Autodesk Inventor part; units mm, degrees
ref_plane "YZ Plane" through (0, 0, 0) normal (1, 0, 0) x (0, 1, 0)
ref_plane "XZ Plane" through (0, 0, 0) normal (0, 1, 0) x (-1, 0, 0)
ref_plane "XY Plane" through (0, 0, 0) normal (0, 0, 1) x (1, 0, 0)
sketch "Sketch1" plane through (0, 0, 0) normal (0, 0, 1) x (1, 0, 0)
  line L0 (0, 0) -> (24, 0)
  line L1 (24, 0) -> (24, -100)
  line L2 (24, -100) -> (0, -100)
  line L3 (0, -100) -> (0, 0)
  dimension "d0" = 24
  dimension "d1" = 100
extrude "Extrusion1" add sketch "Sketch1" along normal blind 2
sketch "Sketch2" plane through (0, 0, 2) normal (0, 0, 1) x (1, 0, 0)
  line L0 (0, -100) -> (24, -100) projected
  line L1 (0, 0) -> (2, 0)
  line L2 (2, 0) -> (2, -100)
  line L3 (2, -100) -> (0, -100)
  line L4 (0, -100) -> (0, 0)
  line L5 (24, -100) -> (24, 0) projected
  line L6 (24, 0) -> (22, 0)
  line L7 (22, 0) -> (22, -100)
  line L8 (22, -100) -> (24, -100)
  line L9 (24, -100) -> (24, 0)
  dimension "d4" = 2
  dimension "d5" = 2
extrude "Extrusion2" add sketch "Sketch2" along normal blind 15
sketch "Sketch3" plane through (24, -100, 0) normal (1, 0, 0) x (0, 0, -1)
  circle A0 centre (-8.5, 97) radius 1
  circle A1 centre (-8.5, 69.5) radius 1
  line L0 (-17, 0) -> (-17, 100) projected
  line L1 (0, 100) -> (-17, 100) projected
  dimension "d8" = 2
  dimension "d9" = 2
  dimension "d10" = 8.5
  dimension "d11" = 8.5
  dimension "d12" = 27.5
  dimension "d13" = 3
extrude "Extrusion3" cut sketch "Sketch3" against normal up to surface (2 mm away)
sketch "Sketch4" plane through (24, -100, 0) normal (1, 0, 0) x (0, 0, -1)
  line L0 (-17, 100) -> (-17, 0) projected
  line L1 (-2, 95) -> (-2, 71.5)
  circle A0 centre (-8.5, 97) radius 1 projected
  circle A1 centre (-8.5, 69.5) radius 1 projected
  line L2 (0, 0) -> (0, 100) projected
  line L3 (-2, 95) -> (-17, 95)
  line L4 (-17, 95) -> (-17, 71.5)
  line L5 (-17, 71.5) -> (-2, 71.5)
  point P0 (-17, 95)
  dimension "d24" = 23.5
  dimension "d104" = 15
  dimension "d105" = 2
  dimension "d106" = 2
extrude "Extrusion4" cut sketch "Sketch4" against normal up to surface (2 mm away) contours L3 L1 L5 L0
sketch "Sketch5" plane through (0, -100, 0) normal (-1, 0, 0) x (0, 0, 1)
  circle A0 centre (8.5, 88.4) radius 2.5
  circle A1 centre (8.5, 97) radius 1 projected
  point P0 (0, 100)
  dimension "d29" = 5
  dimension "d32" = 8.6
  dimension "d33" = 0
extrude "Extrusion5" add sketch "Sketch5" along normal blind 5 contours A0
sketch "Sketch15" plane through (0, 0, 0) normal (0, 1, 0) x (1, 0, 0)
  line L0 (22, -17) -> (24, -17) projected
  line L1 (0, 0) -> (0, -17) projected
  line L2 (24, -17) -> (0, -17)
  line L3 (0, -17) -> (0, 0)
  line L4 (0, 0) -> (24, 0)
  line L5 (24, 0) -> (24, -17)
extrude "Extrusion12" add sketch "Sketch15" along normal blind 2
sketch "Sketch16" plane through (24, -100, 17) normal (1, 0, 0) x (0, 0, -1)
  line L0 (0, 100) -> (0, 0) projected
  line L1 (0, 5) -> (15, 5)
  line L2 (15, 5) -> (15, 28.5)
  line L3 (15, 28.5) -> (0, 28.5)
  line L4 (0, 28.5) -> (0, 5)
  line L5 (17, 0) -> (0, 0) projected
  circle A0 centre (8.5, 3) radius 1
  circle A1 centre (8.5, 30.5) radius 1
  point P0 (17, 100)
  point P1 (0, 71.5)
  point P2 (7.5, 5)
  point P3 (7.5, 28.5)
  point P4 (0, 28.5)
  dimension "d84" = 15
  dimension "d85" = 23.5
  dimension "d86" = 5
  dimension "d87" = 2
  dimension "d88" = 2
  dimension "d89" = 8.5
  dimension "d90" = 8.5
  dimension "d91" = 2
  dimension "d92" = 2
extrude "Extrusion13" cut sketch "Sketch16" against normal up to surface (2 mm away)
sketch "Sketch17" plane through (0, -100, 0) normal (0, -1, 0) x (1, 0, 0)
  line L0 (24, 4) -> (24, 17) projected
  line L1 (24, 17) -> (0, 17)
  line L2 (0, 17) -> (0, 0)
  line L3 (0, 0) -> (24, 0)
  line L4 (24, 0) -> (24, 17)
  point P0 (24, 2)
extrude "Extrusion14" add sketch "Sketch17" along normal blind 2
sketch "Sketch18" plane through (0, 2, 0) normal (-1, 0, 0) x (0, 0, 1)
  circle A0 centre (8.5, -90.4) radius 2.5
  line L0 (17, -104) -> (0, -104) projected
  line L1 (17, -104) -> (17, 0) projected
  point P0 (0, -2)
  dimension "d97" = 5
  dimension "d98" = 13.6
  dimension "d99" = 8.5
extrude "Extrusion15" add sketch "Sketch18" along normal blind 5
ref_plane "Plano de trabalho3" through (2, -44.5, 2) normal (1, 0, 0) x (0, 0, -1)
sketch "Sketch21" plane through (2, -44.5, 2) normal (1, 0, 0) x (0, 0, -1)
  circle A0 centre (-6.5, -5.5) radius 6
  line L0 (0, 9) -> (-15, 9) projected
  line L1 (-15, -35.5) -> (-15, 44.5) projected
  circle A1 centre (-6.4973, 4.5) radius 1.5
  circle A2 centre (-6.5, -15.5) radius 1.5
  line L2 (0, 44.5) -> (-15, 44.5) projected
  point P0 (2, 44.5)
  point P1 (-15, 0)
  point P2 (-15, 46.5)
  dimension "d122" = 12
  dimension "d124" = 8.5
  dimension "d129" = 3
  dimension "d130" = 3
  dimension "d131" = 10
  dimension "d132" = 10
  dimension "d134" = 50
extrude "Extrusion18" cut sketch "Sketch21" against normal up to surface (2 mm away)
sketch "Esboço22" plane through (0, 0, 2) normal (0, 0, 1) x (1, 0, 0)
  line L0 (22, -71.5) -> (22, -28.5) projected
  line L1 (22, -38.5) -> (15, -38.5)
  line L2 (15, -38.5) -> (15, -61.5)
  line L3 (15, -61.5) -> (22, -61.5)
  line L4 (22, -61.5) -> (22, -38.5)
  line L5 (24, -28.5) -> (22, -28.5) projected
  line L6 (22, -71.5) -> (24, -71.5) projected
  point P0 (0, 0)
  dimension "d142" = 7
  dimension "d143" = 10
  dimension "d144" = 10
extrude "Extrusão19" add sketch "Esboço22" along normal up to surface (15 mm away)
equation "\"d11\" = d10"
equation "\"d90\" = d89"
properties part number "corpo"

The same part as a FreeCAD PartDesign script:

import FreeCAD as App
import Part
import Sketcher

V = App.Vector

doc = App.newDocument("Part")
body = doc.addObject("PartDesign::Body", "Body")

# Sketch on XY plane
sketch1 = body.newObject("Sketcher::SketchObject", "Sketch")
sketch1.AttachmentSupport = (doc.getObject("XY_Plane"), [""])
sketch1.MapMode = "FlatFace"
sketch1.addGeometry([
    Part.LineSegment(V(24, 0, 0), V(0, 0, 0)),
    Part.LineSegment(V(0, 0, 0), V(0, -100, 0)),
    Part.LineSegment(V(0, -100, 0), V(24, -100, 0)),
    Part.LineSegment(V(24, -100, 0), V(24, 0, 0)),
], False)
sketch1.addConstraint([
    Sketcher.Constraint("Coincident", 0, 2, 1, 1),
    Sketcher.Constraint("Coincident", 1, 2, 2, 1),
    Sketcher.Constraint("Coincident", 2, 2, 3, 1),
    Sketcher.Constraint("Coincident", 3, 2, 0, 1),
    Sketcher.Constraint("Horizontal", 0),
    Sketcher.Constraint("Vertical", 1),
    Sketcher.Constraint("Horizontal", 2),
    Sketcher.Constraint("Vertical", 3),
    Sketcher.Constraint("Coincident", 0, 2, -1, 1),
    Sketcher.Constraint("DistanceX", 0, 2, 0, 1, 24.0),
    Sketcher.Constraint("DistanceY", 1, 2, 1, 1, 100.0),
])
pad1 = body.newObject("PartDesign::Pad", "Pad")
pad1.Profile = sketch1
pad1.Length = 2

# Sketch on XY plane
sketch2 = body.newObject("Sketcher::SketchObject", "Sketch001")
sketch2.AttachmentSupport = (doc.getObject("XY_Plane"), [""])
sketch2.MapMode = "FlatFace"
sketch2.AttachmentOffset = App.Placement(V(0, 0, 2), App.Rotation())
sketch2.addGeometry([
    Part.LineSegment(V(0, 0, 0), V(0, -100, 0)),  # 0
    Part.LineSegment(V(0, -100, 0), V(2, -100, 0)),  # 1
    Part.LineSegment(V(2, -100, 0), V(2, 0, 0)),  # 2
    Part.LineSegment(V(2, 0, 0), V(0, 0, 0)),  # 3
    Part.LineSegment(V(22, 0, 0), V(22, -100, 0)),  # 4
    Part.LineSegment(V(22, -100, 0), V(24, -100, 0)),  # 5
    Part.LineSegment(V(24, -100, 0), V(24, 0, 0)),  # 6
    Part.LineSegment(V(24, 0, 0), V(22, 0, 0)),  # 7
], False)
sketch2.addConstraint([
    Sketcher.Constraint("Coincident", 0, 2, 1, 1),
    Sketcher.Constraint("Coincident", 1, 2, 2, 1),
    Sketcher.Constraint("Coincident", 2, 2, 3, 1),
    Sketcher.Constraint("Coincident", 3, 2, 0, 1),
    Sketcher.Constraint("Coincident", 4, 2, 5, 1),
    Sketcher.Constraint("Coincident", 5, 2, 6, 1),
    Sketcher.Constraint("Coincident", 6, 2, 7, 1),
    Sketcher.Constraint("Coincident", 7, 2, 4, 1),
    Sketcher.Constraint("Vertical", 0),
    Sketcher.Constraint("Horizontal", 1),
    Sketcher.Constraint("Vertical", 2),
    Sketcher.Constraint("Horizontal", 3),
    Sketcher.Constraint("Vertical", 4),
    Sketcher.Constraint("Horizontal", 5),
    Sketcher.Constraint("Vertical", 6),
    Sketcher.Constraint("Horizontal", 7),
    Sketcher.Constraint("Coincident", 3, 2, -1, 1),
    Sketcher.Constraint("PointOnObject", 6, 2, -1),
    Sketcher.Constraint("Horizontal", 1, 2, 4, 2),
    Sketcher.Constraint("Equal", 3, 5),
    Sketcher.Constraint("DistanceX", 1, 1, 1, 2, 2.0),
    Sketcher.Constraint("DistanceY", 0, 2, 0, 1, 100.0),
    Sketcher.Constraint("DistanceX", -1, 1, 4, 2, 22.0),
])
pad2 = body.newObject("PartDesign::Pad", "Pad001")
pad2.Profile = sketch2
pad2.Length = 15

# Sketch on YZ plane
sketch3 = body.newObject("Sketcher::SketchObject", "Sketch002")
sketch3.AttachmentSupport = (doc.getObject("YZ_Plane"), [""])
sketch3.MapMode = "FlatFace"
sketch3.AttachmentOffset = App.Placement(V(0, 0, 24), App.Rotation())
sketch3.addGeometry([
    Part.Circle(V(-3, 8.5, 0), V(0, 0, 1), 1),
    Part.Circle(V(-30.5, 8.5, 0), V(0, 0, 1), 1),
], False)
sketch3.addConstraint([
    Sketcher.Constraint("Equal", 0, 1),
    Sketcher.Constraint("Horizontal", 0, 3, 1, 3),
    Sketcher.Constraint("Diameter", 0, 2.0),
    Sketcher.Constraint("DistanceX", 0, 3, -1, 1, 3.0),
    Sketcher.Constraint("DistanceY", -1, 1, 0, 3, 8.5),
    Sketcher.Constraint("DistanceX", 1, 3, 0, 3, 27.5),
])
pocket1 = body.newObject("PartDesign::Pocket", "Pocket")
pocket1.Profile = sketch3
pocket1.Length = 2

# Sketch on YZ plane
sketch4 = body.newObject("Sketcher::SketchObject", "Sketch003")
sketch4.AttachmentSupport = (doc.getObject("YZ_Plane"), [""])
sketch4.MapMode = "FlatFace"
sketch4.AttachmentOffset = App.Placement(V(0, 0, 24), App.Rotation())
sketch4.addGeometry([
    Part.LineSegment(V(-5, 2, 0), V(-5, 17, 0)),
    Part.LineSegment(V(-5, 17, 0), V(-28.5, 17, 0)),
    Part.LineSegment(V(-28.5, 17, 0), V(-28.5, 2, 0)),
    Part.LineSegment(V(-28.5, 2, 0), V(-5, 2, 0)),
], False)
sketch4.addConstraint([
    Sketcher.Constraint("Coincident", 0, 2, 1, 1),
    Sketcher.Constraint("Coincident", 1, 2, 2, 1),
    Sketcher.Constraint("Coincident", 2, 2, 3, 1),
    Sketcher.Constraint("Coincident", 3, 2, 0, 1),
    Sketcher.Constraint("Vertical", 0),
    Sketcher.Constraint("Horizontal", 1),
    Sketcher.Constraint("Vertical", 2),
    Sketcher.Constraint("Horizontal", 3),
    Sketcher.Constraint("DistanceY", 0, 1, 0, 2, 15.0),
    Sketcher.Constraint("DistanceX", 1, 2, 1, 1, 23.5),
    Sketcher.Constraint("DistanceY", -1, 1, 2, 2, 2.0),
    Sketcher.Constraint("DistanceX", 0, 2, -1, 1, 5.0),
])
pocket2 = body.newObject("PartDesign::Pocket", "Pocket001")
pocket2.Profile = sketch4
pocket2.Length = 2

# Sketch on YZ plane
sketch5 = body.newObject("Sketcher::SketchObject", "Sketch004")
sketch5.AttachmentSupport = (doc.getObject("YZ_Plane"), [""])
sketch5.MapMode = "FlatFace"
sketch5.addGeometry(Part.Circle(V(-11.6, 8.5, 0), V(0, 0, 1), 2.5), False)
sketch5.addConstraint([
    Sketcher.Constraint("Diameter", 0, 5.0),
    Sketcher.Constraint("DistanceX", 0, 3, -1, 1, 11.6),
    Sketcher.Constraint("DistanceY", -1, 1, 0, 3, 8.5),
])
pad3 = body.newObject("PartDesign::Pad", "Pad002")
pad3.Profile = sketch5
pad3.Length = 5
pad3.Reversed = True

# Sketch on XZ plane
sketch6 = body.newObject("Sketcher::SketchObject", "Sketch005")
sketch6.AttachmentSupport = (doc.getObject("XZ_Plane"), [""])
sketch6.MapMode = "FlatFace"
sketch6.addGeometry([
    Part.LineSegment(V(0, 17, 0), V(24, 17, 0)),
    Part.LineSegment(V(24, 17, 0), V(24, 0, 0)),
    Part.LineSegment(V(24, 0, 0), V(0, 0, 0)),
    Part.LineSegment(V(0, 0, 0), V(0, 17, 0)),
], False)
sketch6.addConstraint([
    Sketcher.Constraint("Coincident", 0, 2, 1, 1),
    Sketcher.Constraint("Coincident", 1, 2, 2, 1),
    Sketcher.Constraint("Coincident", 2, 2, 3, 1),
    Sketcher.Constraint("Coincident", 3, 2, 0, 1),
    Sketcher.Constraint("Horizontal", 0),
    Sketcher.Constraint("Vertical", 1),
    Sketcher.Constraint("Horizontal", 2),
    Sketcher.Constraint("Vertical", 3),
    Sketcher.Constraint("Coincident", 2, 2, -1, 1),
    Sketcher.Constraint("DistanceX", 0, 1, 0, 2, 24.0),
    Sketcher.Constraint("DistanceY", 1, 2, 1, 1, 17.0),
])
pad4 = body.newObject("PartDesign::Pad", "Pad003")
pad4.Profile = sketch6
pad4.Length = 2
pad4.Reversed = True

# Sketch on YZ plane
sketch7 = body.newObject("Sketcher::SketchObject", "Sketch006")
sketch7.AttachmentSupport = (doc.getObject("YZ_Plane"), [""])
sketch7.MapMode = "FlatFace"
sketch7.AttachmentOffset = App.Placement(V(0, 0, 24), App.Rotation())
sketch7.addGeometry([
    Part.LineSegment(V(-71.5, 2, 0), V(-71.5, 17, 0)),  # 0
    Part.LineSegment(V(-71.5, 17, 0), V(-95, 17, 0)),  # 1
    Part.LineSegment(V(-95, 17, 0), V(-95, 2, 0)),  # 2
    Part.LineSegment(V(-95, 2, 0), V(-71.5, 2, 0)),  # 3
    Part.Circle(V(-97, 8.5, 0), V(0, 0, 1), 1),  # 4
    Part.Circle(V(-69.5, 8.5, 0), V(0, 0, 1), 1),  # 5
], False)
sketch7.addConstraint([
    Sketcher.Constraint("Coincident", 0, 2, 1, 1),
    Sketcher.Constraint("Coincident", 1, 2, 2, 1),
    Sketcher.Constraint("Coincident", 2, 2, 3, 1),
    Sketcher.Constraint("Coincident", 3, 2, 0, 1),
    Sketcher.Constraint("Vertical", 0),
    Sketcher.Constraint("Horizontal", 1),
    Sketcher.Constraint("Vertical", 2),
    Sketcher.Constraint("Horizontal", 3),
    Sketcher.Constraint("Equal", 4, 5),
    Sketcher.Constraint("Horizontal", 4, 3, 5, 3),
    Sketcher.Constraint("Diameter", 4, 2.0),
    Sketcher.Constraint("DistanceY", 0, 1, 0, 2, 15.0),
    Sketcher.Constraint("DistanceX", 1, 2, 1, 1, 23.5),
    Sketcher.Constraint("DistanceY", -1, 1, 2, 2, 2.0),
    Sketcher.Constraint("DistanceX", 0, 2, 5, 3, 2.0),
    Sketcher.Constraint("DistanceX", 4, 3, 1, 2, 2.0),
    Sketcher.Constraint("DistanceY", -1, 1, 4, 3, 8.5),
    Sketcher.Constraint("DistanceX", 4, 3, -1, 1, 97.0),
])
pocket3 = body.newObject("PartDesign::Pocket", "Pocket002")
pocket3.Profile = sketch7
pocket3.Length = 2

# Sketch on XZ plane
sketch8 = body.newObject("Sketcher::SketchObject", "Sketch007")
sketch8.AttachmentSupport = (doc.getObject("XZ_Plane"), [""])
sketch8.MapMode = "FlatFace"
sketch8.AttachmentOffset = App.Placement(V(0, 0, 100), App.Rotation())
sketch8.addGeometry([
    Part.LineSegment(V(24, 0, 0), V(24, 17, 0)),
    Part.LineSegment(V(24, 17, 0), V(0, 17, 0)),
    Part.LineSegment(V(0, 17, 0), V(0, 0, 0)),
    Part.LineSegment(V(0, 0, 0), V(24, 0, 0)),
], False)
sketch8.addConstraint([
    Sketcher.Constraint("Coincident", 0, 2, 1, 1),
    Sketcher.Constraint("Coincident", 1, 2, 2, 1),
    Sketcher.Constraint("Coincident", 2, 2, 3, 1),
    Sketcher.Constraint("Coincident", 3, 2, 0, 1),
    Sketcher.Constraint("Vertical", 0),
    Sketcher.Constraint("Horizontal", 1),
    Sketcher.Constraint("Vertical", 2),
    Sketcher.Constraint("Horizontal", 3),
    Sketcher.Constraint("Coincident", 2, 2, -1, 1),
    Sketcher.Constraint("DistanceX", 1, 2, 1, 1, 24.0),
    Sketcher.Constraint("DistanceY", 0, 1, 0, 2, 17.0),
])
pad5 = body.newObject("PartDesign::Pad", "Pad004")
pad5.Profile = sketch8
pad5.Length = 2

# Sketch on YZ plane
sketch9 = body.newObject("Sketcher::SketchObject", "Sketch008")
sketch9.AttachmentSupport = (doc.getObject("YZ_Plane"), [""])
sketch9.MapMode = "FlatFace"
sketch9.addGeometry(Part.Circle(V(-88.4, 8.5, 0), V(0, 0, 1), 2.5), False)
sketch9.addConstraint([
    Sketcher.Constraint("Diameter", 0, 5.0),
    Sketcher.Constraint("DistanceY", -1, 1, 0, 3, 8.5),
    Sketcher.Constraint("DistanceX", 0, 3, -1, 1, 88.4),
])
pad6 = body.newObject("PartDesign::Pad", "Pad005")
pad6.Profile = sketch9
pad6.Length = 5
pad6.Reversed = True

# Sketch on YZ plane
sketch10 = body.newObject("Sketcher::SketchObject", "Sketch009")
sketch10.AttachmentSupport = (doc.getObject("YZ_Plane"), [""])
sketch10.MapMode = "FlatFace"
sketch10.AttachmentOffset = App.Placement(V(0, 0, 2), App.Rotation())
sketch10.addGeometry([
    Part.Circle(V(-50, 8.5, 0), V(0, 0, 1), 6),
    Part.Circle(V(-40, 8.4973, 0), V(0, 0, 1), 1.5),
    Part.Circle(V(-60, 8.5, 0), V(0, 0, 1), 1.5),
], False)
sketch10.addConstraint([
    Sketcher.Constraint("Equal", 1, 2),
    Sketcher.Constraint("Horizontal", 0, 3, 2, 3),
    Sketcher.Constraint("Diameter", 0, 12.0),
    Sketcher.Constraint("Diameter", 1, 3.0),
    Sketcher.Constraint("DistanceX", 0, 3, -1, 1, 50.0),
    Sketcher.Constraint("DistanceX", 0, 3, 1, 3, 10.0),
    Sketcher.Constraint("DistanceX", 2, 3, 0, 3, 10.0),
    Sketcher.Constraint("DistanceY", -1, 1, 0, 3, 8.5),
    Sketcher.Constraint("DistanceY", -1, 1, 1, 3, 8.4973),
])
pocket4 = body.newObject("PartDesign::Pocket", "Pocket003")
pocket4.Profile = sketch10
pocket4.Length = 2

# Sketch on XY plane
sketch11 = body.newObject("Sketcher::SketchObject", "Sketch010")
sketch11.AttachmentSupport = (doc.getObject("XY_Plane"), [""])
sketch11.MapMode = "FlatFace"
sketch11.AttachmentOffset = App.Placement(V(0, 0, 2), App.Rotation())
sketch11.addGeometry([
    Part.LineSegment(V(15, -61.5, 0), V(22, -61.5, 0)),
    Part.LineSegment(V(22, -61.5, 0), V(22, -38.5, 0)),
    Part.LineSegment(V(22, -38.5, 0), V(15, -38.5, 0)),
    Part.LineSegment(V(15, -38.5, 0), V(15, -61.5, 0)),
], False)
sketch11.addConstraint([
    Sketcher.Constraint("Coincident", 0, 2, 1, 1),
    Sketcher.Constraint("Coincident", 1, 2, 2, 1),
    Sketcher.Constraint("Coincident", 2, 2, 3, 1),
    Sketcher.Constraint("Coincident", 3, 2, 0, 1),
    Sketcher.Constraint("Horizontal", 0),
    Sketcher.Constraint("Vertical", 1),
    Sketcher.Constraint("Horizontal", 2),
    Sketcher.Constraint("Vertical", 3),
    Sketcher.Constraint("DistanceX", 0, 1, 0, 2, 7.0),
    Sketcher.Constraint("DistanceY", 1, 1, 1, 2, 23.0),
    Sketcher.Constraint("DistanceX", -1, 1, 0, 2, 22.0),
    Sketcher.Constraint("DistanceY", 0, 2, -1, 1, 61.5),
])
pad7 = body.newObject("PartDesign::Pad", "Pad006")
pad7.Profile = sketch11
pad7.Length = 15

doc.recompute()
